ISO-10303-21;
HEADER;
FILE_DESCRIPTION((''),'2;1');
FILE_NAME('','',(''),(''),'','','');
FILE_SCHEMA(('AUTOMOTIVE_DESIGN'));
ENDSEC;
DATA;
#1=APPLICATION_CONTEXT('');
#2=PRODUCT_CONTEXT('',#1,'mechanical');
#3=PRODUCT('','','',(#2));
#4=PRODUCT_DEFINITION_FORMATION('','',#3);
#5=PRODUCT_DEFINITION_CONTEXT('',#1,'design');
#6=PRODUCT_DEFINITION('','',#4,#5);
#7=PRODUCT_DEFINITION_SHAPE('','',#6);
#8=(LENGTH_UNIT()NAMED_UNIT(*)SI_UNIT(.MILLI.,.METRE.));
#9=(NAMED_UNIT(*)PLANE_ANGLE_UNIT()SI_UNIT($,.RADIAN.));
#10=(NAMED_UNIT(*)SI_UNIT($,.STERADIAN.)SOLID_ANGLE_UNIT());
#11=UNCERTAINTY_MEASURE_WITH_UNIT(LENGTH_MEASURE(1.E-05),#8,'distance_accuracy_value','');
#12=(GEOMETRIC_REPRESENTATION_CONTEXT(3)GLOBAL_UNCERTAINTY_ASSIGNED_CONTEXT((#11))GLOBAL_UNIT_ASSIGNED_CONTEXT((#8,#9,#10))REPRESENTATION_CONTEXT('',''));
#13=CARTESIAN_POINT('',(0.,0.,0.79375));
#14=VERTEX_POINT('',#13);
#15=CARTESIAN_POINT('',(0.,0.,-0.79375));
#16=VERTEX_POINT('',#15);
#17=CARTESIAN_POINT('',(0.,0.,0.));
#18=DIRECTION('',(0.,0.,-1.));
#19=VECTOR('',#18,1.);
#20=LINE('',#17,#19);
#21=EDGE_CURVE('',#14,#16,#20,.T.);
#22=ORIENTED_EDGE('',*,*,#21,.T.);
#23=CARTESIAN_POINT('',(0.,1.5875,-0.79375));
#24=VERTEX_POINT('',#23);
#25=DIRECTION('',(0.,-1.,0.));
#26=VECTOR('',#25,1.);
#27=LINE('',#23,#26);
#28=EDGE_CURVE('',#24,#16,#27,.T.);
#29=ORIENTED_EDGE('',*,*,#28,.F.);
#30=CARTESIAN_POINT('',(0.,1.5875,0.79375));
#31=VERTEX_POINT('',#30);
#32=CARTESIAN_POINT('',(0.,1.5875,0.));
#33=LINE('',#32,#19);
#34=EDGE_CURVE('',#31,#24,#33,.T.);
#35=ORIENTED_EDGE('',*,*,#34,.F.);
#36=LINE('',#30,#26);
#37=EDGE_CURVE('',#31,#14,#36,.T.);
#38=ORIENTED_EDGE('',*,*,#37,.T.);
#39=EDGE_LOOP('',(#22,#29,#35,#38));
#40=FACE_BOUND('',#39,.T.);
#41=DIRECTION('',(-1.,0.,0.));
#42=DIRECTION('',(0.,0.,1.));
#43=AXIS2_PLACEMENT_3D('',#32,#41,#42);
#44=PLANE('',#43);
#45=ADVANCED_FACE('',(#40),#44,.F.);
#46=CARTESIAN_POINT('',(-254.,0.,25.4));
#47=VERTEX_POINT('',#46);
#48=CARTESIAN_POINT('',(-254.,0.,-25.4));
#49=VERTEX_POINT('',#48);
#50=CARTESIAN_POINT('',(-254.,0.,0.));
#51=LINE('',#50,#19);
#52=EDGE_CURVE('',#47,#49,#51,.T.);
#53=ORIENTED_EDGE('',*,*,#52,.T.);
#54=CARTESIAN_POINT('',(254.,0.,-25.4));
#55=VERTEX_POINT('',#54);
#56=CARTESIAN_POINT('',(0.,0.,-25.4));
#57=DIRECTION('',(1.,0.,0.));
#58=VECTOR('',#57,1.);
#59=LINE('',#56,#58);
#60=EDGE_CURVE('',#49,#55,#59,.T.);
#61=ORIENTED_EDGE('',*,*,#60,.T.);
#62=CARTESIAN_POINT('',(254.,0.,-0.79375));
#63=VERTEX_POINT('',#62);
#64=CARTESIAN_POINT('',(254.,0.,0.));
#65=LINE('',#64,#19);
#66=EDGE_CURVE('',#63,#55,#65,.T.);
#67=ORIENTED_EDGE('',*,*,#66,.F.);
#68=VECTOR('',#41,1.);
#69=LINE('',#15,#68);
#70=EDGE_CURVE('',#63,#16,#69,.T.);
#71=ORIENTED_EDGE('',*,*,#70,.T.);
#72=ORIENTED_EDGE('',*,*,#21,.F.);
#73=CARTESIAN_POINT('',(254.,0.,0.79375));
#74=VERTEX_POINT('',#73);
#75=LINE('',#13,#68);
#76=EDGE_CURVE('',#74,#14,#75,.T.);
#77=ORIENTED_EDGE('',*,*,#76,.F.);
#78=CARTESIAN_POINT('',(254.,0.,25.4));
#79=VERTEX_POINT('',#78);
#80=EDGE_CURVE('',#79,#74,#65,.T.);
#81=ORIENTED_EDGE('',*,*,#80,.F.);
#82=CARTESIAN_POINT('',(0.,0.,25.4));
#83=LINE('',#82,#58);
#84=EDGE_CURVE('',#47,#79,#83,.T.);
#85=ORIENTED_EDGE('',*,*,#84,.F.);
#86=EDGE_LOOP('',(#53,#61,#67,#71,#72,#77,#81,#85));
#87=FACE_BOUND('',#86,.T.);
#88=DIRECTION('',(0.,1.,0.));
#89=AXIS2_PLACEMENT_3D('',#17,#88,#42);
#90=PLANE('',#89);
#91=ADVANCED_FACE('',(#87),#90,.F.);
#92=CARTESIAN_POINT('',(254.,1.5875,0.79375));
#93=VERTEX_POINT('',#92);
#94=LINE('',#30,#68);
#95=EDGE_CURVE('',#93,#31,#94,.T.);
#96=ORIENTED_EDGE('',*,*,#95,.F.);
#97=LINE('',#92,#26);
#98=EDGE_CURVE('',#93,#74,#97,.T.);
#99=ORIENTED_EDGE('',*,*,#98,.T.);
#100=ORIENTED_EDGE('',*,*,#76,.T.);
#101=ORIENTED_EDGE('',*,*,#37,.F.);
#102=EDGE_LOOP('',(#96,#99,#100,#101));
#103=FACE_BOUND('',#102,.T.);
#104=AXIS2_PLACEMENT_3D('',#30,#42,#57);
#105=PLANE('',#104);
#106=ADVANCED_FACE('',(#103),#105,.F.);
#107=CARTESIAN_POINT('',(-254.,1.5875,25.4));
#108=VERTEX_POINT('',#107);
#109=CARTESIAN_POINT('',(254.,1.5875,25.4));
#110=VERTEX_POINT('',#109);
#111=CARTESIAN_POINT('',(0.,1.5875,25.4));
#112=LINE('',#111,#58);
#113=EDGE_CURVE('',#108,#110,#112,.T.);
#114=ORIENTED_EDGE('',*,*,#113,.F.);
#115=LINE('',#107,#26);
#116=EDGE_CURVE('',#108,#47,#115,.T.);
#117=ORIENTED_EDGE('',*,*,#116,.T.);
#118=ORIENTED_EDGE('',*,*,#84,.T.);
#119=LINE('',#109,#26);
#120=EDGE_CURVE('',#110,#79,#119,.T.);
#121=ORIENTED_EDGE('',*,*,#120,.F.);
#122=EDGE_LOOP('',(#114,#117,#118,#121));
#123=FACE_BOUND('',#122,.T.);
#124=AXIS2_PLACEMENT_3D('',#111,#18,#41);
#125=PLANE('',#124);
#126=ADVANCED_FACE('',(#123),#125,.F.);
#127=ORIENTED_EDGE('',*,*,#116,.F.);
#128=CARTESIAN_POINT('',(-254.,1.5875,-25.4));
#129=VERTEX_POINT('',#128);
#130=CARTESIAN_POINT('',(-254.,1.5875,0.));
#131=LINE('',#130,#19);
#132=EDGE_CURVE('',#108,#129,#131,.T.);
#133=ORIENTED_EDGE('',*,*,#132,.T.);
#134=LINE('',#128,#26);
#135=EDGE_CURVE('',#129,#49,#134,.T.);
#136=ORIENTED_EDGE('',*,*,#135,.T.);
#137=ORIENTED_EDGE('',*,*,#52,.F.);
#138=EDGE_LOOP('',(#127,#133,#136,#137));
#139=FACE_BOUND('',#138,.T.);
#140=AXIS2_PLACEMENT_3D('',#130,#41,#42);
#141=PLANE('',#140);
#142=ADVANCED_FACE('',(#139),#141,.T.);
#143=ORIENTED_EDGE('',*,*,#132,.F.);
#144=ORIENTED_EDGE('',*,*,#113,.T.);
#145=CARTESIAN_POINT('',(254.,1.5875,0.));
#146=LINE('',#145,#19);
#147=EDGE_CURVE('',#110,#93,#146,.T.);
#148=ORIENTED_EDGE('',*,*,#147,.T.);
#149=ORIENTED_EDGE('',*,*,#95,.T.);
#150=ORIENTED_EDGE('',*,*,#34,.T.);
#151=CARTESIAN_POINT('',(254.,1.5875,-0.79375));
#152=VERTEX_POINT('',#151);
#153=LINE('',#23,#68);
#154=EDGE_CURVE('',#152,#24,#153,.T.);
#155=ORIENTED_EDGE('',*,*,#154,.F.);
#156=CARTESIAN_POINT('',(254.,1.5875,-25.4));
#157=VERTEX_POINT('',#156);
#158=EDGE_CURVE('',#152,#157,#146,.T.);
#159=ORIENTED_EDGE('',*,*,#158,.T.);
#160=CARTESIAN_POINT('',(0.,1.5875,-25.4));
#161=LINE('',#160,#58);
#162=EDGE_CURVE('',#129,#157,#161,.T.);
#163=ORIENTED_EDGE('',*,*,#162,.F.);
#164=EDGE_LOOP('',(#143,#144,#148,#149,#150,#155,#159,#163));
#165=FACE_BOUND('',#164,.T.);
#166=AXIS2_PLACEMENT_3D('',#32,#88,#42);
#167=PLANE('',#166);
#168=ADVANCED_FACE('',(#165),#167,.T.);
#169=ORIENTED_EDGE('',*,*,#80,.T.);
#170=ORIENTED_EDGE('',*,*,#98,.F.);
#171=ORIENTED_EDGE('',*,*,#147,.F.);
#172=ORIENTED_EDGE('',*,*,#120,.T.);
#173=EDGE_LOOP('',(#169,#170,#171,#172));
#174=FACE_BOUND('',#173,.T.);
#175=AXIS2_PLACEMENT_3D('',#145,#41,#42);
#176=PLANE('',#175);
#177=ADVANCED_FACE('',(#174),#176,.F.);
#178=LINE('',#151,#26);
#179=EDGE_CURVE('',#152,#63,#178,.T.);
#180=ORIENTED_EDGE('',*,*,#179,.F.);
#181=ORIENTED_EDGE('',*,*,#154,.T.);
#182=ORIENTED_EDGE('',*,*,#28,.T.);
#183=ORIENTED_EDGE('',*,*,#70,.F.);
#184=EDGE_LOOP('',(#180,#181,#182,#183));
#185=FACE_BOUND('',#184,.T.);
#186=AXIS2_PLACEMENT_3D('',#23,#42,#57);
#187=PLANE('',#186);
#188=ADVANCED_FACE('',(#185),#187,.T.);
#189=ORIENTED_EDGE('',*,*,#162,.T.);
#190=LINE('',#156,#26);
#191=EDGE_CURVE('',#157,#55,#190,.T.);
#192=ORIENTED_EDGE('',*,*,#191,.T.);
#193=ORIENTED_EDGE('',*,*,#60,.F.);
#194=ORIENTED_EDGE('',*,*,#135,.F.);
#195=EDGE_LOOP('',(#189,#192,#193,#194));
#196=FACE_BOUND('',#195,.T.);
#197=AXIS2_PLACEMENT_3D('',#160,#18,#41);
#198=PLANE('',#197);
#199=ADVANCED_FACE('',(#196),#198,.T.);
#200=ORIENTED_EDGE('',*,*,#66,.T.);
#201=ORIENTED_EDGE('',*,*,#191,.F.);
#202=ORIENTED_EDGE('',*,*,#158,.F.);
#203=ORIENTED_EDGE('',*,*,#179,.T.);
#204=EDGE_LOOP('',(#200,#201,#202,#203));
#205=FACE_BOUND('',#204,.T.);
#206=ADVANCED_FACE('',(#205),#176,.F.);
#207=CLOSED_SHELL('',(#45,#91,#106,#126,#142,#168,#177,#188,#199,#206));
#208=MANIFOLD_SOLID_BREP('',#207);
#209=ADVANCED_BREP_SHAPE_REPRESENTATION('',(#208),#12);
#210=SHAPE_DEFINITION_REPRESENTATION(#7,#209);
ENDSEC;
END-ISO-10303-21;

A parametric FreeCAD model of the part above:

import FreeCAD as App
import Part
import Sketcher

V = App.Vector
Q = App.Units.Quantity


def add_polygon(sketch, points):
    """Adds a closed chain of lines whose ends are joined by coincident constraints."""
    first, n = sketch.GeometryCount, len(points)
    for a, b in zip(points, points[1:] + points[:1]):
        sketch.addGeometry(Part.LineSegment(App.Vector(*a, 0), App.Vector(*b, 0)), False)
    for i in range(n):
        sketch.addConstraint(Sketcher.Constraint("Coincident", first + i, 2, first + (i + 1) % n, 1))

doc = App.newDocument("Part")
body = doc.addObject("PartDesign::Body", "Body")

# Sketch on XZ plane
sketch1 = body.newObject("Sketcher::SketchObject", "Sketch")
sketch1.AttachmentSupport = (doc.getObject("XZ_Plane"), [""])
sketch1.MapMode = "FlatFace"
add_polygon(sketch1, [(-254, -25.4), (-254, 25.4), (254, 25.4), (254, 0.79375), (0, 0.79375), (0, -0.79375), (254, -0.79375), (254, -25.4)])  # lines 0-7
sketch1.addConstraint(Sketcher.Constraint("Vertical", 0))
sketch1.addConstraint(Sketcher.Constraint("Horizontal", 1))
sketch1.addConstraint(Sketcher.Constraint("Vertical", 2))
sketch1.addConstraint(Sketcher.Constraint("Horizontal", 3))
sketch1.addConstraint(Sketcher.Constraint("Vertical", 4))
sketch1.addConstraint(Sketcher.Constraint("Horizontal", 5))
sketch1.addConstraint(Sketcher.Constraint("Vertical", 6))
sketch1.addConstraint(Sketcher.Constraint("Horizontal", 7))
sketch1.addConstraint(Sketcher.Constraint("Symmetric", 3, 2, 4, 2, -1, 1))
sketch1.addConstraint(Sketcher.Constraint("Symmetric", 0, 2, 6, 2, -1, 1))
sketch1.addConstraint(Sketcher.Constraint("Vertical", 2, 2, 5, 2))
sketch1.addConstraint(Sketcher.Constraint("DistanceX", 1, 1, 1, 2, Q("20 in")))
sketch1.addConstraint(Sketcher.Constraint("DistanceY", 0, 1, 0, 2, Q("2 in")))
sketch1.addConstraint(Sketcher.Constraint("DistanceY", 2, 2, 2, 1, Q("0.96875 in")))
pad1 = body.newObject("PartDesign::Pad", "Pad")
pad1.Profile = sketch1
pad1.Length = Q("0.0625 in")
pad1.Reversed = True

doc.recompute()
